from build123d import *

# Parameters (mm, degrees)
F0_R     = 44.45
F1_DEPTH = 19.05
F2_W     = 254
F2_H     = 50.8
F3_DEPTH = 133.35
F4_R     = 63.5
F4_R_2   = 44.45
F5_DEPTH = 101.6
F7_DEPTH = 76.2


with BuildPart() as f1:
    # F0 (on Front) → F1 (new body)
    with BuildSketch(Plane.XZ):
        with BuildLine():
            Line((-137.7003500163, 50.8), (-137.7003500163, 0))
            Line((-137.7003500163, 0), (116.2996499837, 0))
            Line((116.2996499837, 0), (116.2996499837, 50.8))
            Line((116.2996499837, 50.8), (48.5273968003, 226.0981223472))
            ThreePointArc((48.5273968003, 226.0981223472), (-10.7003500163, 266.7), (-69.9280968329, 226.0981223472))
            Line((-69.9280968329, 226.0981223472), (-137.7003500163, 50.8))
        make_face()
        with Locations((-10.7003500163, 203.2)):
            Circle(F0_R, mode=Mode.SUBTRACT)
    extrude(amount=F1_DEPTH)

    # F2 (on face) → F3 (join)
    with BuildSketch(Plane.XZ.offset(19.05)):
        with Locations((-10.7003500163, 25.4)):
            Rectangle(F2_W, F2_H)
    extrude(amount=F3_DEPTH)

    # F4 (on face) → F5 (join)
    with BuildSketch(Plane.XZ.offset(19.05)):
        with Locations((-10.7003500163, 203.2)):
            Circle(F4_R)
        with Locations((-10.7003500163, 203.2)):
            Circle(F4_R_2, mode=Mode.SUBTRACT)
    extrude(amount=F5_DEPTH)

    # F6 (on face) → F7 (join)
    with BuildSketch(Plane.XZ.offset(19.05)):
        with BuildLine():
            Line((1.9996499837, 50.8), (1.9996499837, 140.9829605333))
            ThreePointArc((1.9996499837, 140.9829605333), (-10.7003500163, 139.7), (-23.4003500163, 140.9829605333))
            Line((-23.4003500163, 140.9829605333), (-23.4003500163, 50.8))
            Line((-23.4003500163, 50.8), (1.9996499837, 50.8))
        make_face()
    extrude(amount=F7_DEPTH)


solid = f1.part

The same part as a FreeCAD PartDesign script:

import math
import FreeCAD as App
import Part
import Sketcher

V = App.Vector
Q = App.Units.Quantity


def add_polygon(sketch, points):
    """Adds a closed chain of lines whose ends are joined by coincident constraints."""
    first, n = sketch.GeometryCount, len(points)
    for a, b in zip(points, points[1:] + points[:1]):
        sketch.addGeometry(Part.LineSegment(App.Vector(*a, 0), App.Vector(*b, 0)), False)
    for i in range(n):
        sketch.addConstraint(Sketcher.Constraint("Coincident", first + i, 2, first + (i + 1) % n, 1))

doc = App.newDocument("Part")
body = doc.addObject("PartDesign::Body", "Body")

sketch1 = body.newObject("Sketcher::SketchObject", "Sketch")
sketch1.AttachmentSupport = (doc.getObject("XZ_Plane"), [""])
sketch1.MapMode = "FlatFace"
sketch1.addGeometry([
    Part.LineSegment(V(-137.70035, 50.8, 0), V(-137.70035, 0, 0)),
    Part.LineSegment(V(-137.70035, 0, 0), V(116.29965, 0, 0)),
    Part.LineSegment(V(116.29965, 0, 0), V(116.29965, 50.8, 0)),
    Part.LineSegment(V(116.29965, 50.8, 0), V(48.527397, 226.098122, 0)),
    Part.ArcOfCircle(Part.Circle(V(-10.70035, 203.2, 0), V(0, 0, 1), 63.5), math.radians(21.13707), math.radians(158.86293)),
    Part.LineSegment(V(-69.928097, 226.098122, 0), V(-137.70035, 50.8, 0)),
    Part.Circle(V(-10.70035, 203.2, 0), V(0, 0, 1), 44.45),
], False)
sketch1.addConstraint([
    Sketcher.Constraint("Coincident", 0, 2, 1, 1),
    Sketcher.Constraint("Coincident", 1, 2, 2, 1),
    Sketcher.Constraint("Coincident", 2, 2, 3, 1),
    Sketcher.Constraint("Tangent", 3, 2, 4, 1),
    Sketcher.Constraint("Tangent", 4, 2, 5, 1),
    Sketcher.Constraint("Coincident", 5, 2, 0, 1),
    Sketcher.Constraint("Vertical", 0),
    Sketcher.Constraint("Horizontal", 1),
    Sketcher.Constraint("Vertical", 2),
    Sketcher.Constraint("Coincident", 6, 3, 4, 3),
    Sketcher.Constraint("PointOnObject", 0, 2, -1),
    Sketcher.Constraint("Horizontal", 3, 2, 4, 2),
    Sketcher.Constraint("Horizontal", 2, 2, 5, 2),
    Sketcher.Constraint("Diameter", 6, Q("3.5 in")),
    Sketcher.Constraint("Radius", 4, Q("2.5 in")),
    Sketcher.Constraint("DistanceX", 1, 1, 1, 2, Q("10 in")),
    Sketcher.Constraint("DistanceY", 0, 2, 0, 1, Q("2 in")),
    Sketcher.Constraint("DistanceY", -1, 1, 4, 3, Q("8 in")),
    Sketcher.Constraint("DistanceX", 4, 3, -1, 1, Q("10.70035 mm")),
])
pad1 = body.newObject("PartDesign::Pad", "Pad")
pad1.Profile = sketch1
pad1.Length = Q("0.75 in")

sketch2 = body.newObject("Sketcher::SketchObject", "Sketch001")
sketch2.AttachmentSupport = (doc.getObject("XZ_Plane"), [""])
sketch2.MapMode = "FlatFace"
sketch2.AttachmentOffset = App.Placement(V(0, 0, 0.75 * 25.4), App.Rotation())
add_polygon(sketch2, [(-137.70035, 50.8), (-137.70035, 0), (116.29965, 0), (116.29965, 50.8)])
sketch2.addConstraint([
    Sketcher.Constraint("Vertical", 0),
    Sketcher.Constraint("Horizontal", 1),
    Sketcher.Constraint("Vertical", 2),
    Sketcher.Constraint("Horizontal", 3),
    Sketcher.Constraint("PointOnObject", 0, 2, -1),
    Sketcher.Constraint("DistanceX", 1, 1, 1, 2, Q("10 in")),
    Sketcher.Constraint("DistanceY", 0, 2, 0, 1, Q("2 in")),
    Sketcher.Constraint("DistanceX", 0, 2, -1, 1, Q("137.70035 mm")),
])
pad2 = body.newObject("PartDesign::Pad", "Pad001")
pad2.Profile = sketch2
pad2.Length = Q("5.25 in")

sketch3 = body.newObject("Sketcher::SketchObject", "Sketch002")
sketch3.AttachmentSupport = (doc.getObject("XZ_Plane"), [""])
sketch3.MapMode = "FlatFace"
sketch3.AttachmentOffset = App.Placement(V(0, 0, 0.75 * 25.4), App.Rotation())
sketch3.addGeometry([
    Part.Circle(V(-10.70035, 203.2, 0), V(0, 0, 1), 63.5),
    Part.Circle(V(-10.70035, 203.2, 0), V(0, 0, 1), 44.45),
], False)
sketch3.addConstraint([
    Sketcher.Constraint("Coincident", 1, 3, 0, 3),
    Sketcher.Constraint("Diameter", 0, Q("5 in")),
    Sketcher.Constraint("Diameter", 1, Q("3.5 in")),
    Sketcher.Constraint("DistanceY", -1, 1, 0, 3, Q("8 in")),
    Sketcher.Constraint("DistanceX", 0, 3, -1, 1, Q("10.70035 mm")),
])
pad3 = body.newObject("PartDesign::Pad", "Pad002")
pad3.Profile = sketch3
pad3.Length = Q("4 in")

sketch4 = body.newObject("Sketcher::SketchObject", "Sketch003")
sketch4.AttachmentSupport = (doc.getObject("XZ_Plane"), [""])
sketch4.MapMode = "FlatFace"
sketch4.AttachmentOffset = App.Placement(V(0, 0, 0.75 * 25.4), App.Rotation())
sketch4.addGeometry([
    Part.LineSegment(V(1.99965, 50.8, 0), V(1.99965, 140.982961, 0)),
    Part.ArcOfCircle(Part.Circle(V(-10.70035, 203.2, 0), V(0, 0, 1), 63.5), math.radians(-101.536959), math.radians(-78.463041)),
    Part.LineSegment(V(-23.40035, 140.982961, 0), V(-23.40035, 50.8, 0)),
    Part.LineSegment(V(-23.40035, 50.8, 0), V(1.99965, 50.8, 0)),
], False)
sketch4.addConstraint([
    Sketcher.Constraint("Coincident", 0, 2, 1, 2),
    Sketcher.Constraint("Coincident", 1, 1, 2, 1),
    Sketcher.Constraint("Coincident", 2, 2, 3, 1),
    Sketcher.Constraint("Coincident", 3, 2, 0, 1),
    Sketcher.Constraint("Vertical", 0),
    Sketcher.Constraint("Vertical", 2),
    Sketcher.Constraint("Horizontal", 3),
    Sketcher.Constraint("Horizontal", 0, 2, 1, 1),
    Sketcher.Constraint("Radius", 1, Q("2.5 in")),
    Sketcher.Constraint("DistanceX", 3, 1, 3, 2, Q("1 in")),
    Sketcher.Constraint("DistanceY", -1, 1, 1, 3, Q("8 in")),
    Sketcher.Constraint("DistanceY", -1, 1, 2, 2, Q("2 in")),
    Sketcher.Constraint("DistanceX", 1, 3, -1, 1, Q("10.70035 mm")),
])
pad4 = body.newObject("PartDesign::Pad", "Pad003")
pad4.Profile = sketch4
pad4.Length = Q("3 in")

doc.recompute()
